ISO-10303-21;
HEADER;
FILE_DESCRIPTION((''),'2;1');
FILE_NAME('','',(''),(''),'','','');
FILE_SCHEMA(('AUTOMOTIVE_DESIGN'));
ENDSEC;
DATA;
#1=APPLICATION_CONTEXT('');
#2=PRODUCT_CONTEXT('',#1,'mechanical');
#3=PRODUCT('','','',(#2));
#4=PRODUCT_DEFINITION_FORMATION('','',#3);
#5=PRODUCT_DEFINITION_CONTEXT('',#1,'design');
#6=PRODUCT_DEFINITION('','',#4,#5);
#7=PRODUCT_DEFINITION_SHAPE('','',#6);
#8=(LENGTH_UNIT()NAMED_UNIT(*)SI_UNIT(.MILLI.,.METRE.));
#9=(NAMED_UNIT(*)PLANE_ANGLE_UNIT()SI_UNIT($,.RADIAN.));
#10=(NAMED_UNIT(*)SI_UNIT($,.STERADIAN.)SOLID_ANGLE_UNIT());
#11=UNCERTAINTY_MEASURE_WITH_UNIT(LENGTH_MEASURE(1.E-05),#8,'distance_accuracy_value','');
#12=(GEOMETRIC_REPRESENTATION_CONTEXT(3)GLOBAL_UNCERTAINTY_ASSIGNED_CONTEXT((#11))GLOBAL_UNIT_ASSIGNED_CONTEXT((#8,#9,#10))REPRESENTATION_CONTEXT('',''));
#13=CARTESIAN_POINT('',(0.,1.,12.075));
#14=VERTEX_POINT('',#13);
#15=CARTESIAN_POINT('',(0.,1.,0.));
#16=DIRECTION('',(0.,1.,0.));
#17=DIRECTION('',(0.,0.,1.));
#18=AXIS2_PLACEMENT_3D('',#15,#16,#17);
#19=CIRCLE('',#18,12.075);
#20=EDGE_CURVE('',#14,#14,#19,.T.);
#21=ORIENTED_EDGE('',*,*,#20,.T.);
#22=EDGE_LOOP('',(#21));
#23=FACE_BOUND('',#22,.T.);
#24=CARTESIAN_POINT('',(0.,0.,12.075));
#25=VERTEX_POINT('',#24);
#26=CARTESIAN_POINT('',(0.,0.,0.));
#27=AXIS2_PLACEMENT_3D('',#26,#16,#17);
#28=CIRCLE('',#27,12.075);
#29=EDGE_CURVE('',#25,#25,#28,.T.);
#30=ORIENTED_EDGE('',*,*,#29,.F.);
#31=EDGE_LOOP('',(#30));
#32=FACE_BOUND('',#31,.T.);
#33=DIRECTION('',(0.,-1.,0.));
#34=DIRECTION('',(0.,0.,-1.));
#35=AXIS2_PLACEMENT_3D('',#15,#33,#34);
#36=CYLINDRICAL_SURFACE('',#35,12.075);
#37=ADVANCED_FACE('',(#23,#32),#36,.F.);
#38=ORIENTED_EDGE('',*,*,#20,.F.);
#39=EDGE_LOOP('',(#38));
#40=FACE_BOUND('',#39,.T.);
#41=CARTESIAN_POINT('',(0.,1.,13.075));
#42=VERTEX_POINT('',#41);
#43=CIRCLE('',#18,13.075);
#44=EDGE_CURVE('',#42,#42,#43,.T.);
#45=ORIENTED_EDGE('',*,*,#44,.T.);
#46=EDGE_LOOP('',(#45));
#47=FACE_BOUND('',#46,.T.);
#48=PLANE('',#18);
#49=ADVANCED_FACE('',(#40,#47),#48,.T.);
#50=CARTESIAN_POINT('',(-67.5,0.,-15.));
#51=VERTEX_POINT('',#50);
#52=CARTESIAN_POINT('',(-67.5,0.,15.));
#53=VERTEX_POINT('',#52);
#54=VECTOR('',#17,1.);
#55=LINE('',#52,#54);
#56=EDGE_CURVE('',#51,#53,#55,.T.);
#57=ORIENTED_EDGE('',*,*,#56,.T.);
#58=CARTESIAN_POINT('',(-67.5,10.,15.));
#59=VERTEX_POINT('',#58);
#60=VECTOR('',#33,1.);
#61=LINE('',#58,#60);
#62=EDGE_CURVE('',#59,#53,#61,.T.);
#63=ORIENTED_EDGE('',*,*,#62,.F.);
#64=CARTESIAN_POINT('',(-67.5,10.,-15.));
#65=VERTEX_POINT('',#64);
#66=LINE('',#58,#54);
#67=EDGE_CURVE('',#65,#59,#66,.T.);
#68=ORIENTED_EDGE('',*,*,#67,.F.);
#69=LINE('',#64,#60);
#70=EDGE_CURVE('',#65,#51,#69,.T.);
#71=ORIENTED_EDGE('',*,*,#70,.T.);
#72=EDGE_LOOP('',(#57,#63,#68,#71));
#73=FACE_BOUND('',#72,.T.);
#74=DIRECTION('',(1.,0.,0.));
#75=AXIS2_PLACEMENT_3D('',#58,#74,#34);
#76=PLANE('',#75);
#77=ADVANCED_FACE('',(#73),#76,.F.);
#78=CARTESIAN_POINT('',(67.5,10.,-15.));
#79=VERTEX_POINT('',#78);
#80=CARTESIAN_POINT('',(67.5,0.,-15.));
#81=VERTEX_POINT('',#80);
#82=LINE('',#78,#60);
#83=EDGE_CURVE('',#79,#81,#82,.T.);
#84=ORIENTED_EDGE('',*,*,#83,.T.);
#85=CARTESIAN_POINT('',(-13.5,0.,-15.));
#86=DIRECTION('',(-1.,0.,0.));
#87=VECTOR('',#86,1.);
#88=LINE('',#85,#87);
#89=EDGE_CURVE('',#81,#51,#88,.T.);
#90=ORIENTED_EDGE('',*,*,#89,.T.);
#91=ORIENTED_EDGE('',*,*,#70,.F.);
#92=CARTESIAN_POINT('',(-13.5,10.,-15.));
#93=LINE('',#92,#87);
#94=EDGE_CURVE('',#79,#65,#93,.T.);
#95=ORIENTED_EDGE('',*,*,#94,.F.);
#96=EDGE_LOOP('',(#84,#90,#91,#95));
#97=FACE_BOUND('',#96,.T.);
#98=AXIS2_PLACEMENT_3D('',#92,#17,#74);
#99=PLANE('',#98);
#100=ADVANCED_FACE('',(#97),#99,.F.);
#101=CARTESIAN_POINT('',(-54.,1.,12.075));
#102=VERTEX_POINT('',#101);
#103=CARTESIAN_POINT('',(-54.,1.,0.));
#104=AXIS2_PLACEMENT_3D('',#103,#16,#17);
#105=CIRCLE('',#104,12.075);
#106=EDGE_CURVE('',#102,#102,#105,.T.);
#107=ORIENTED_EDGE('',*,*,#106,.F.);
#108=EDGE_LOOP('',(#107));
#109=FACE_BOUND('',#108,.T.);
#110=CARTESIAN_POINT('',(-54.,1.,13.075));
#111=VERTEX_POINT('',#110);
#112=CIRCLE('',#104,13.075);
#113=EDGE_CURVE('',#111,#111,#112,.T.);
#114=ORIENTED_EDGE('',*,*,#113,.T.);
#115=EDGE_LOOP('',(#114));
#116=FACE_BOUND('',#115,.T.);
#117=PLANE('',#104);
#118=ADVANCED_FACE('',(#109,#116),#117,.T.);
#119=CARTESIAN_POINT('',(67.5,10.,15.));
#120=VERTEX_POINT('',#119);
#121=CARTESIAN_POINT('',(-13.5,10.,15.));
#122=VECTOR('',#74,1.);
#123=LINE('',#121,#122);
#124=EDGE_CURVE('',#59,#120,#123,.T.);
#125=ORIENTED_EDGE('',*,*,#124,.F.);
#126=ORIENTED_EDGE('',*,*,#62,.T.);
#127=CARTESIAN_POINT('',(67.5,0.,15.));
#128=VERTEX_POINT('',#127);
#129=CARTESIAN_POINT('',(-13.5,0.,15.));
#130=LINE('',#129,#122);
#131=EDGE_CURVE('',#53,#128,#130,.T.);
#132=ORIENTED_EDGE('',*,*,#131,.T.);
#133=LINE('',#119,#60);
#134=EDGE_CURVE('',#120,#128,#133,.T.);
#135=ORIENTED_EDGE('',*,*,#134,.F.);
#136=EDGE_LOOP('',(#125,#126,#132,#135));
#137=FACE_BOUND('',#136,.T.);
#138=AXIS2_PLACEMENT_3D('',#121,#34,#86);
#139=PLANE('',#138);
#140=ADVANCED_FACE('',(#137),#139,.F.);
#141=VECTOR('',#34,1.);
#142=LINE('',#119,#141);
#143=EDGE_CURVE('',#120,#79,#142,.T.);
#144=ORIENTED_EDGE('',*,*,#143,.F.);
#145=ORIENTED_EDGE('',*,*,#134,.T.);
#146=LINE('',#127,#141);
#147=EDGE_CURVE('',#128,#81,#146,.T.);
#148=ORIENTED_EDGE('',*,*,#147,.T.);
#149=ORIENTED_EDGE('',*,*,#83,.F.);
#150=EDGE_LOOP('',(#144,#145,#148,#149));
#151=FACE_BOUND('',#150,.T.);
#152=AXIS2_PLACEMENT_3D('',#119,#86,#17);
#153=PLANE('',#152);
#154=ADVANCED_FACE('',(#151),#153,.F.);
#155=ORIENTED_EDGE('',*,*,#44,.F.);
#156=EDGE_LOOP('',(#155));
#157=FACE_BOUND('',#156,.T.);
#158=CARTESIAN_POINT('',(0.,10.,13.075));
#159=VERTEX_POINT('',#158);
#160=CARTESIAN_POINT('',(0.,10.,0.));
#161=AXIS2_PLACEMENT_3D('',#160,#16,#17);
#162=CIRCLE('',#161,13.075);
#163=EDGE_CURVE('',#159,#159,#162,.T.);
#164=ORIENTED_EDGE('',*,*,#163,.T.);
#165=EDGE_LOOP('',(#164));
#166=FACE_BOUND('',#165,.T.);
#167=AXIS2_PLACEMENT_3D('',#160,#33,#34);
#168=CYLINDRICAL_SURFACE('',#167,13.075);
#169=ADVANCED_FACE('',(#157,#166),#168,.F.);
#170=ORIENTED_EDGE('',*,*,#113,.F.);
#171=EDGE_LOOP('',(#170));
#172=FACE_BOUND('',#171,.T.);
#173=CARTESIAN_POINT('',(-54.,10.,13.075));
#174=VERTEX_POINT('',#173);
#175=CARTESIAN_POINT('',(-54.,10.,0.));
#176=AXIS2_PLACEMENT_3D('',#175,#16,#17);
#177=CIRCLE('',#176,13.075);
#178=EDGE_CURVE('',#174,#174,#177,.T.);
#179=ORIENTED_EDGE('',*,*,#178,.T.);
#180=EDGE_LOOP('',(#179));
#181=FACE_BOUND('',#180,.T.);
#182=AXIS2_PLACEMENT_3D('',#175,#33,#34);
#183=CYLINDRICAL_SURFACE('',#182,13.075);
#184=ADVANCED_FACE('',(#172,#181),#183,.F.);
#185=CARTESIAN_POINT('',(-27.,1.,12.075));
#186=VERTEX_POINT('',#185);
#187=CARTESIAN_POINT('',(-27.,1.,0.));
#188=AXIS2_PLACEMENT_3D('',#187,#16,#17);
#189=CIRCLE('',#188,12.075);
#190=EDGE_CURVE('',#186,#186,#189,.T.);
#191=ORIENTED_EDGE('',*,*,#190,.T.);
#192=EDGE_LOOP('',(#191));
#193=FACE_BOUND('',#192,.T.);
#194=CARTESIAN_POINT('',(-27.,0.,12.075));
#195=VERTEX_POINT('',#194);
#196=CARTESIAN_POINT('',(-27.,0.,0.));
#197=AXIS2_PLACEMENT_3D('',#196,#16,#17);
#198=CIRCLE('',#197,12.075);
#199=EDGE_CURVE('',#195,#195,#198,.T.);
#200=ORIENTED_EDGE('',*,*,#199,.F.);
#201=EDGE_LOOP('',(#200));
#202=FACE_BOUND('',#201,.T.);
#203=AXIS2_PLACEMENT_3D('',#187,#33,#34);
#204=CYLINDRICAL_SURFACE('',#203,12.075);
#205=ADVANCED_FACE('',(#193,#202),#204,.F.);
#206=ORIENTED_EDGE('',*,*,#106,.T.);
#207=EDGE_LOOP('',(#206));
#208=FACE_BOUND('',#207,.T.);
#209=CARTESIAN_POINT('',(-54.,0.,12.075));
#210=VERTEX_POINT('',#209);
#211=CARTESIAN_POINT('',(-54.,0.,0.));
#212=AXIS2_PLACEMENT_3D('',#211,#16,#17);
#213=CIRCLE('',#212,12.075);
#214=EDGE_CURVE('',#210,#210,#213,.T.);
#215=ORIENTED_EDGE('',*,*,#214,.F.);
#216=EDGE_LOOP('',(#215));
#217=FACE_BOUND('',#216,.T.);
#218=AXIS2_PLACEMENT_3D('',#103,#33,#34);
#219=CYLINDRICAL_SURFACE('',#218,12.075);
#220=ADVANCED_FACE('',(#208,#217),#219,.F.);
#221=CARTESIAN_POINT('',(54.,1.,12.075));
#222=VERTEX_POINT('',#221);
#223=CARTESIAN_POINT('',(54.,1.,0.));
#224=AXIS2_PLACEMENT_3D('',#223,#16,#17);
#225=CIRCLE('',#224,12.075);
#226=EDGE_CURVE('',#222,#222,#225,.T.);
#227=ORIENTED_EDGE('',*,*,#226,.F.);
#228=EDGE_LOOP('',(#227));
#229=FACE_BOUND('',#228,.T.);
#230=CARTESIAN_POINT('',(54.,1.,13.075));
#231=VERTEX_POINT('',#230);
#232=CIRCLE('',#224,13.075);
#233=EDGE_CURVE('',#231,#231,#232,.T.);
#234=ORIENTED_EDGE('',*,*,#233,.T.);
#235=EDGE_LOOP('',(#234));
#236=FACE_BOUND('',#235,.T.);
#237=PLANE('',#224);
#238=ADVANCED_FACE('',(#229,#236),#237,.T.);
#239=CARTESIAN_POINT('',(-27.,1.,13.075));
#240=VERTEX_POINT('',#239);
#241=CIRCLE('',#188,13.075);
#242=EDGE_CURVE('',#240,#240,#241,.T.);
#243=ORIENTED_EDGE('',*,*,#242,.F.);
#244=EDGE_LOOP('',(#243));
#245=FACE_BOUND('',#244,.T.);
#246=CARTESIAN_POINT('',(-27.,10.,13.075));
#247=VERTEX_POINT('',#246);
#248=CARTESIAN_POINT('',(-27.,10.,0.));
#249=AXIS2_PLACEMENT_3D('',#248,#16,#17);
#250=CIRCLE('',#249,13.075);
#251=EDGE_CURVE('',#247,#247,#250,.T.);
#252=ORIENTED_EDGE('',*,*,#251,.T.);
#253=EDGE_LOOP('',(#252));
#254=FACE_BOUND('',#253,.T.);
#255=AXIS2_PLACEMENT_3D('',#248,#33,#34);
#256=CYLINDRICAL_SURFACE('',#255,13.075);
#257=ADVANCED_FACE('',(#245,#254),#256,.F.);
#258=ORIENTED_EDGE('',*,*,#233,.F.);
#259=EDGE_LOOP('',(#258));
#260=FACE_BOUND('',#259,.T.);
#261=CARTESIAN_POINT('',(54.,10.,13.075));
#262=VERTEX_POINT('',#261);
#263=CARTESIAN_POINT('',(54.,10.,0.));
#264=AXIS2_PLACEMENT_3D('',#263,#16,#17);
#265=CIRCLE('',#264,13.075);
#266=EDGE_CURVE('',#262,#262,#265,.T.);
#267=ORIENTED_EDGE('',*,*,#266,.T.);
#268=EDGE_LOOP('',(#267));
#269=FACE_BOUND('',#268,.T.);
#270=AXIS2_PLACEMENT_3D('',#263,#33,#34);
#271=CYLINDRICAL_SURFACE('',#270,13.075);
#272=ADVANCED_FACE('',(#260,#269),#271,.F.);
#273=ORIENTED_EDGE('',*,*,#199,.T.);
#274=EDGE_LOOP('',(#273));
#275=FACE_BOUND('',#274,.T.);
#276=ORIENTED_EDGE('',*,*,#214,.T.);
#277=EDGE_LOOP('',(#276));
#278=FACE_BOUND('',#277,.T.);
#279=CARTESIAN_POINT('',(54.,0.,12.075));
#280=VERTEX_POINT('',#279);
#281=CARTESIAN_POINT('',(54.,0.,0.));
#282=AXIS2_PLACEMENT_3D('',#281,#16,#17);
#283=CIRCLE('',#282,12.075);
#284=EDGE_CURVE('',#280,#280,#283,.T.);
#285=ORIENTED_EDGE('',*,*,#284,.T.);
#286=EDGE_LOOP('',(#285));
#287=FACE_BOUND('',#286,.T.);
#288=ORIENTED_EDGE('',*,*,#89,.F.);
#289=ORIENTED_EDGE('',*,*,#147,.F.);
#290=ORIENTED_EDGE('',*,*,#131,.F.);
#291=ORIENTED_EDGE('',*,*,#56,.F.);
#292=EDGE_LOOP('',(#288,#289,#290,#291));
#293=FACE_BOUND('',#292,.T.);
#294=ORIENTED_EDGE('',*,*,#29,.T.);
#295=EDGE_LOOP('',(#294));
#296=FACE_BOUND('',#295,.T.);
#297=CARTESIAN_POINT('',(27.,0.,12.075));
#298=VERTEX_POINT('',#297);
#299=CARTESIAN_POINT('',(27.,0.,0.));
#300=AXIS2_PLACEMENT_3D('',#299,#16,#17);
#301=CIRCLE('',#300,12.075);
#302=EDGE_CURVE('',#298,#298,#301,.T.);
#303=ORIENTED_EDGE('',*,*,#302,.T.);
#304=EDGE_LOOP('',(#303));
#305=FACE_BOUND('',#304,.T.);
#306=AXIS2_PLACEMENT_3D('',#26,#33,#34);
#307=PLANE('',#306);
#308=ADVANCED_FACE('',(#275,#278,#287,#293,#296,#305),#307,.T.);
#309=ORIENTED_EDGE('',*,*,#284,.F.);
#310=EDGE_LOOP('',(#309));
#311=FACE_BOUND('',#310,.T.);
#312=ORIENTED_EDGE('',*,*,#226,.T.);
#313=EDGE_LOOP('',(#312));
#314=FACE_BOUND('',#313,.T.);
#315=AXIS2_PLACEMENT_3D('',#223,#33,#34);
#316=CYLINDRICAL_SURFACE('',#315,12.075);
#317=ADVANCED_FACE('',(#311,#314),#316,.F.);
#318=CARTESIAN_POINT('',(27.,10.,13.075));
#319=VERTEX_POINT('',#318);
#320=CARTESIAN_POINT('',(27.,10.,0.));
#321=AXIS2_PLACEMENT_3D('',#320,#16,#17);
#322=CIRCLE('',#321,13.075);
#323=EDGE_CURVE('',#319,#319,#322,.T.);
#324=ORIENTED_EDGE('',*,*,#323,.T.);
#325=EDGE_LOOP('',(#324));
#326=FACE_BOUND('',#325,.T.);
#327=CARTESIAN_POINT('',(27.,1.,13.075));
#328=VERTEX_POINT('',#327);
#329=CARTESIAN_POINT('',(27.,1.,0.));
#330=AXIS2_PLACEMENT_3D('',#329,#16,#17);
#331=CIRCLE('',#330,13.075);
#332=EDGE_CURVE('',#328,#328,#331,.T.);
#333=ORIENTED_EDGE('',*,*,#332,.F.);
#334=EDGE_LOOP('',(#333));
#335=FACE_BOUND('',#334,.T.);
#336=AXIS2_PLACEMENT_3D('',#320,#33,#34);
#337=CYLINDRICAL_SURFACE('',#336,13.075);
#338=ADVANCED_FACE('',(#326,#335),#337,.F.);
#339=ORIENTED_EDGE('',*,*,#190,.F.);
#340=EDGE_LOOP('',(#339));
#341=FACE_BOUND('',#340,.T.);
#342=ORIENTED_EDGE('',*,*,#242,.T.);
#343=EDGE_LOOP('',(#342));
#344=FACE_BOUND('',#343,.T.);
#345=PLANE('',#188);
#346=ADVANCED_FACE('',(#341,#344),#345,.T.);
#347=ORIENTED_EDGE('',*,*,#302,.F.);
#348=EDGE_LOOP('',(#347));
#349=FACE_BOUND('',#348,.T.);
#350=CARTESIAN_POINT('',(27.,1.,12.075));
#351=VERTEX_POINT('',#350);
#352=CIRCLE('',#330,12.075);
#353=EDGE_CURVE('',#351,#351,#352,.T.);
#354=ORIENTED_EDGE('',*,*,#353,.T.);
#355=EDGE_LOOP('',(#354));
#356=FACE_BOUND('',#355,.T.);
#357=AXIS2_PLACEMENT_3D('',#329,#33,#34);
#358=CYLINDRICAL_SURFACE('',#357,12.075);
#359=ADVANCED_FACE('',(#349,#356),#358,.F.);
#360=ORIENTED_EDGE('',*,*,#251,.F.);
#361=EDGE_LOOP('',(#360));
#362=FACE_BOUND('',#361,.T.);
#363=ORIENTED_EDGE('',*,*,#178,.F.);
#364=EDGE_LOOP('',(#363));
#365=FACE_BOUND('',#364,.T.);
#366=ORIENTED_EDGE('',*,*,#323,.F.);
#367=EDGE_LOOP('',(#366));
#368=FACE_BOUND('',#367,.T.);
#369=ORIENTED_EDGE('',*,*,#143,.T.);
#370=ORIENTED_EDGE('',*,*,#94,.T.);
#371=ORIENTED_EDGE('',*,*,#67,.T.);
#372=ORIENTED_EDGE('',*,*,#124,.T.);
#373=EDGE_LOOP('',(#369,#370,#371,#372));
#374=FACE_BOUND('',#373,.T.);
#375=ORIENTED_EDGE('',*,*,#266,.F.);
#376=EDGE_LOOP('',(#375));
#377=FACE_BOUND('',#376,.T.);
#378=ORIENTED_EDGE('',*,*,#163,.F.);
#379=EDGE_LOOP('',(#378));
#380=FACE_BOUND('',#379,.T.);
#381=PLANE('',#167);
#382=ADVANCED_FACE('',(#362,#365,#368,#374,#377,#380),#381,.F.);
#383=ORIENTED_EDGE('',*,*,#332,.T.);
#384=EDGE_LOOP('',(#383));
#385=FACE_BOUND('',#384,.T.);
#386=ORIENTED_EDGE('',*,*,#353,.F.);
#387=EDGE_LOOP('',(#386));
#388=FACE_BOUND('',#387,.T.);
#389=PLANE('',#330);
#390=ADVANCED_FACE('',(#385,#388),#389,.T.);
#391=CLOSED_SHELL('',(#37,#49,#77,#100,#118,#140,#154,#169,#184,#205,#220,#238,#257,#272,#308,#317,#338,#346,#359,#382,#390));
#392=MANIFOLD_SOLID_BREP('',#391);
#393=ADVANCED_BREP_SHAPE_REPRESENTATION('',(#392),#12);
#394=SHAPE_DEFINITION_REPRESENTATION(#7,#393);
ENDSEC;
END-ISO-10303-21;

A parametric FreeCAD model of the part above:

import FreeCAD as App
import Part
import Sketcher

V = App.Vector
Q = App.Units.Quantity


def add_polygon(sketch, points):
    """Adds a closed chain of lines whose ends are joined by coincident constraints."""
    first, n = sketch.GeometryCount, len(points)
    for a, b in zip(points, points[1:] + points[:1]):
        sketch.addGeometry(Part.LineSegment(App.Vector(*a, 0), App.Vector(*b, 0)), False)
    for i in range(n):
        sketch.addConstraint(Sketcher.Constraint("Coincident", first + i, 2, first + (i + 1) % n, 1))

doc = App.newDocument("Part")
body = doc.addObject("PartDesign::Body", "Body")

sketch1 = body.newObject("Sketcher::SketchObject", "Sketch")
sketch1.AttachmentSupport = (doc.getObject("XZ_Plane"), [""])
sketch1.MapMode = "FlatFace"
add_polygon(sketch1, [(-14, -15), (-14, 15), (14, 15), (14, -15)])
sketch1.addGeometry(Part.Circle(V(0, 0, 0), V(0, 0, 1), 13), False)
sketch1.addConstraint([
    Sketcher.Constraint("Vertical", 0),
    Sketcher.Constraint("Horizontal", 1),
    Sketcher.Constraint("Vertical", 2),
    Sketcher.Constraint("Horizontal", 3),
    Sketcher.Constraint("Coincident", 4, 3, -1, 1),
    Sketcher.Constraint("Symmetric", 0, 2, 2, 2, -1, 1),
    Sketcher.Constraint("Diameter", 4, Q("26.15 mm")),
    Sketcher.Constraint("DistanceX", 1, 1, 1, 2, Q("27 mm")),
    Sketcher.Constraint("DistanceY", 0, 1, 0, 2, Q("30 mm")),
])
pad1 = body.newObject("PartDesign::Pad", "Pad")
pad1.Profile = sketch1
pad1.Length = 10
pad1.Reversed = True

sketch2 = body.newObject("Sketcher::SketchObject", "Sketch001")
sketch2.AttachmentSupport = (doc.getObject("XZ_Plane"), [""])
sketch2.MapMode = "FlatFace"
sketch2.addGeometry([
    Part.Circle(V(0, 0, 0), V(0, 0, 1), 13),
    Part.Circle(V(0, 0, 0), V(0, 0, 1), 12),
], False)
sketch2.addConstraint([
    Sketcher.Constraint("Coincident", 0, 3, -1, 1),
    Sketcher.Constraint("Coincident", 1, 3, -1, 1),
    Sketcher.Constraint("Diameter", 0, Q("26.15 mm")),
    Sketcher.Constraint("Diameter", 1, Q("24.15 mm")),
])
pad2 = body.newObject("PartDesign::Pad", "Pad001")
pad2.Profile = sketch2
pad2.Length = 1
pad2.Reversed = True
doc.recompute()

linearpattern = body.newObject("PartDesign::LinearPattern", "LinearPattern")
linearpattern.Originals = [pad1, pad2]
linearpattern.Direction = (doc.getObject("X_Axis"), [""])
linearpattern.Mode = "offset"
linearpattern.Offset = 27
linearpattern.Occurrences = 3
body.Tip = linearpattern
doc.recompute()

linearpattern2 = body.newObject("PartDesign::LinearPattern", "LinearPattern001")
linearpattern2.Originals = [pad1, pad2]
linearpattern2.Direction = (doc.getObject("X_Axis"), [""])
linearpattern2.Mode = "offset"
linearpattern2.Offset = 27
linearpattern2.Occurrences = 3
linearpattern2.Reversed = True
body.Tip = linearpattern2

doc.recompute()
